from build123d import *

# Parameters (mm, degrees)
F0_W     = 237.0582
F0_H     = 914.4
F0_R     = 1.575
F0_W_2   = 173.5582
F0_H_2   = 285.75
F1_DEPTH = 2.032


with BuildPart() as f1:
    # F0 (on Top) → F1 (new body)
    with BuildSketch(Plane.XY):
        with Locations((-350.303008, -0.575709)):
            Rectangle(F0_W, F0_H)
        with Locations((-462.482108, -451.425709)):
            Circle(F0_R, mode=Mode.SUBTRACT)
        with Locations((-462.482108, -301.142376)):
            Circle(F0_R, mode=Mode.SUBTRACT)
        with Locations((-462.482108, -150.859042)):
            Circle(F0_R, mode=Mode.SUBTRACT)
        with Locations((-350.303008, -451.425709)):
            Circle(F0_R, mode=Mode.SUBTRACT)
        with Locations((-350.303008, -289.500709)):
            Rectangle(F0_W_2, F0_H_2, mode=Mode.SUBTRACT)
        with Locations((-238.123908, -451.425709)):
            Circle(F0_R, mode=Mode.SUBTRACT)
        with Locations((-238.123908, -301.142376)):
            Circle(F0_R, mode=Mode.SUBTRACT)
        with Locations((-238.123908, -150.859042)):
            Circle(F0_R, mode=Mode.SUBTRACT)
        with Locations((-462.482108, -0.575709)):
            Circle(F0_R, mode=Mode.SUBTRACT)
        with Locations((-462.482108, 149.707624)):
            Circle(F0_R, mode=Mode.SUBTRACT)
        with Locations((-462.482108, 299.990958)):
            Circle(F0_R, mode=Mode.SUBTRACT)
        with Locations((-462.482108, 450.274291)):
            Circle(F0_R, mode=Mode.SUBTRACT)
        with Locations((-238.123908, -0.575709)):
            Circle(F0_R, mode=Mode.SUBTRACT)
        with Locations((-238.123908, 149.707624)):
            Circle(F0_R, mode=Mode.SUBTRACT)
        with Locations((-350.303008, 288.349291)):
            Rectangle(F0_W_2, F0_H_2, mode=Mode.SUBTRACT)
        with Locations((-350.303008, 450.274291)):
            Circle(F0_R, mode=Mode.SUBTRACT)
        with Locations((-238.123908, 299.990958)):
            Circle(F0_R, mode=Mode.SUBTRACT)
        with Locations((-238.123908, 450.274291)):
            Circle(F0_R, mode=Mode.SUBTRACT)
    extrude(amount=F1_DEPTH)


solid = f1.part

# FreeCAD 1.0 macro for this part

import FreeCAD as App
import Part
import Sketcher
from FreeCAD import Vector
Q = App.Units.Quantity

doc = App.newDocument("Part")
body = doc.addObject("PartDesign::Body", "Body")

# Sketch on XY plane
sketch1 = doc.addObject("Sketcher::SketchObject", "Sketch")
body.addObject(sketch1)
sketch1.AttachmentSupport = (doc.XY_Plane, [""])
sketch1.MapMode = "FlatFace"
sketch1.addGeometry([
    Part.LineSegment(Vector(-468.8, 456.6, 0), Vector(-468.8, -457.8, 0)),  # 0
    Part.LineSegment(Vector(-468.8, -457.8, 0), Vector(-231.8, -457.8, 0)),  # 1
    Part.LineSegment(Vector(-231.8, -457.8, 0), Vector(-231.8, 456.6, 0)),  # 2
    Part.LineSegment(Vector(-231.8, 456.6, 0), Vector(-468.8, 456.6, 0)),  # 3
    Part.Circle(Vector(-462.5, -451.4, 0), Vector(0, 0, 1), 1.6),  # 4
    Part.Circle(Vector(-462.5, -301.1, 0), Vector(0, 0, 1), 1.6),  # 5
    Part.Circle(Vector(-462.5, -150.9, 0), Vector(0, 0, 1), 1.6),  # 6
    Part.Circle(Vector(-350.3, -451.4, 0), Vector(0, 0, 1), 1.6),  # 7
    Part.LineSegment(Vector(-263.5, -432.4, 0), Vector(-437.1, -432.4, 0)),  # 8
    Part.LineSegment(Vector(-437.1, -432.4, 0), Vector(-437.1, -146.6, 0)),  # 9
    Part.LineSegment(Vector(-437.1, -146.6, 0), Vector(-263.5, -146.6, 0)),  # 10
    Part.LineSegment(Vector(-263.5, -146.6, 0), Vector(-263.5, -432.4, 0)),  # 11
    Part.Circle(Vector(-238.1, -451.4, 0), Vector(0, 0, 1), 1.6),  # 12
    Part.Circle(Vector(-238.1, -301.1, 0), Vector(0, 0, 1), 1.6),  # 13
    Part.Circle(Vector(-238.1, -150.9, 0), Vector(0, 0, 1), 1.6),  # 14
    Part.Circle(Vector(-462.5, -0.6, 0), Vector(0, 0, 1), 1.6),  # 15
    Part.Circle(Vector(-462.5, 149.7, 0), Vector(0, 0, 1), 1.6),  # 16
    Part.Circle(Vector(-462.5, 300, 0), Vector(0, 0, 1), 1.6),  # 17
    Part.Circle(Vector(-462.5, 450.3, 0), Vector(0, 0, 1), 1.6),  # 18
    Part.Circle(Vector(-238.1, -0.6, 0), Vector(0, 0, 1), 1.6),  # 19
    Part.Circle(Vector(-238.1, 149.7, 0), Vector(0, 0, 1), 1.6),  # 20
    Part.LineSegment(Vector(-263.5, 145.5, 0), Vector(-437.1, 145.5, 0)),  # 21
    Part.LineSegment(Vector(-437.1, 145.5, 0), Vector(-437.1, 431.2, 0)),  # 22
    Part.LineSegment(Vector(-437.1, 431.2, 0), Vector(-263.5, 431.2, 0)),  # 23
    Part.LineSegment(Vector(-263.5, 431.2, 0), Vector(-263.5, 145.5, 0)),  # 24
    Part.Circle(Vector(-350.3, 450.3, 0), Vector(0, 0, 1), 1.6),  # 25
    Part.Circle(Vector(-238.1, 300, 0), Vector(0, 0, 1), 1.6),  # 26
    Part.Circle(Vector(-238.1, 450.3, 0), Vector(0, 0, 1), 1.6),  # 27
], False)
sketch1.addConstraint([
    Sketcher.Constraint("Coincident", 0, 2, 1, 1),
    Sketcher.Constraint("Coincident", 1, 2, 2, 1),
    Sketcher.Constraint("Coincident", 2, 2, 3, 1),
    Sketcher.Constraint("Coincident", 3, 2, 0, 1),
    Sketcher.Constraint("Coincident", 8, 2, 9, 1),
    Sketcher.Constraint("Coincident", 9, 2, 10, 1),
    Sketcher.Constraint("Coincident", 10, 2, 11, 1),
    Sketcher.Constraint("Coincident", 11, 2, 8, 1),
    Sketcher.Constraint("Coincident", 21, 2, 22, 1),
    Sketcher.Constraint("Coincident", 22, 2, 23, 1),
    Sketcher.Constraint("Coincident", 23, 2, 24, 1),
    Sketcher.Constraint("Coincident", 24, 2, 21, 1),
    Sketcher.Constraint("Vertical", 0),
    Sketcher.Constraint("Horizontal", 1),
    Sketcher.Constraint("Vertical", 2),
    Sketcher.Constraint("Horizontal", 3),
    Sketcher.Constraint("Horizontal", 8),
    Sketcher.Constraint("Vertical", 9),
    Sketcher.Constraint("Horizontal", 10),
    Sketcher.Constraint("Vertical", 11),
    Sketcher.Constraint("Horizontal", 21),
    Sketcher.Constraint("Vertical", 22),
    Sketcher.Constraint("Horizontal", 23),
    Sketcher.Constraint("Vertical", 24),
    Sketcher.Constraint("Equal", 4, 5),
    Sketcher.Constraint("Equal", 5, 6),
    Sketcher.Constraint("Equal", 6, 7),
    Sketcher.Constraint("Equal", 7, 12),
    Sketcher.Constraint("Equal", 12, 13),
    Sketcher.Constraint("Equal", 13, 14),
    Sketcher.Constraint("Equal", 14, 15),
    Sketcher.Constraint("Equal", 15, 16),
    Sketcher.Constraint("Equal", 16, 17),
    Sketcher.Constraint("Equal", 17, 18),
    Sketcher.Constraint("Equal", 18, 19),
    Sketcher.Constraint("Equal", 19, 20),
    Sketcher.Constraint("Equal", 20, 25),
    Sketcher.Constraint("Equal", 25, 26),
    Sketcher.Constraint("Equal", 26, 27),
    Sketcher.Constraint("Horizontal", 4, 3, 7, 3),
    Sketcher.Constraint("Horizontal", 7, 3, 12, 3),
    Sketcher.Constraint("Horizontal", 5, 3, 13, 3),
    Sketcher.Constraint("Horizontal", 6, 3, 14, 3),
    Sketcher.Constraint("Horizontal", 15, 3, 19, 3),
    Sketcher.Constraint("Horizontal", 16, 3, 20, 3),
    Sketcher.Constraint("Horizontal", 18, 3, 25, 3),
    Sketcher.Constraint("Horizontal", 17, 3, 26, 3),
    Sketcher.Constraint("Horizontal", 25, 3, 27, 3),
    Sketcher.Constraint("Vertical", 4, 3, 5, 3),
    Sketcher.Constraint("Vertical", 5, 3, 6, 3),
    Sketcher.Constraint("Vertical", 12, 3, 13, 3),
    Sketcher.Constraint("Vertical", 13, 3, 14, 3),
    Sketcher.Constraint("Vertical", 6, 3, 15, 3),
    Sketcher.Constraint("Vertical", 15, 3, 16, 3),
    Sketcher.Constraint("Vertical", 16, 3, 17, 3),
    Sketcher.Constraint("Vertical", 17, 3, 18, 3),
    Sketcher.Constraint("Vertical", 14, 3, 19, 3),
    Sketcher.Constraint("Vertical", 19, 3, 20, 3),
    Sketcher.Constraint("Vertical", 7, 3, 25, 3),
    Sketcher.Constraint("Vertical", 20, 3, 26, 3),
    Sketcher.Constraint("Vertical", 26, 3, 27, 3),
    Sketcher.Constraint("Vertical", 9, 2, 21, 2),
    Sketcher.Constraint("Vertical", 11, 2, 23, 2),
    Sketcher.Constraint("Equal", 11, 22),
    Sketcher.Constraint("DistanceY", 0, 2, 0, 1, Q("36 in")),
    Sketcher.Constraint("DistanceX", 4, 3, 8, 2, Q("1 in")),
    Sketcher.Constraint("DistanceY", 0, 2, 8, 2, Q("1 in")),
    Sketcher.Constraint("DistanceX", 10, 2, 14, 3, Q("1 in")),
    Sketcher.Constraint("DistanceY", 22, 2, 3, 2, Q("1 in")),
    Sketcher.Constraint("DistanceY", 9, 1, 9, 2, Q("11.25 in")),
    Sketcher.Constraint("Diameter", 4, Q("3.15 mm")),
    Sketcher.Constraint("DistanceX", 1, 1, 1, 2, Q("9.333 in")),
    Sketcher.Constraint("DistanceX", 8, 2, 8, 1, Q("6.833 in")),
    Sketcher.Constraint("DistanceY", 4, 3, 15, 3, Q("17.75 in")),
    Sketcher.Constraint("DistanceY", 5, 3, 16, 3, Q("17.75 in")),
    Sketcher.Constraint("DistanceY", 6, 3, 17, 3, Q("17.75 in")),
    Sketcher.Constraint("DistanceY", 15, 3, 18, 3, Q("17.75 in")),
    Sketcher.Constraint("DistanceX", 0, 2, 4, 3, Q("0.25 in")),
    Sketcher.Constraint("DistanceY", 0, 2, 4, 3, Q("0.25 in")),
    Sketcher.Constraint("DistanceX", 4, 3, 7, 3, Q("4.4165 in")),
    Sketcher.Constraint("DistanceX", 4, 3, -1, 1, Q("462.482108 mm")),
    Sketcher.Constraint("DistanceY", 4, 3, -1, 1, Q("451.425709 mm")),
    Sketcher.Constraint("DistanceY", 6, 3, -1, 1, Q("150.859042 mm")),
    Sketcher.Constraint("DistanceY", 5, 3, -1, 1, Q("301.142376 mm")),
])
pad1 = doc.addObject("PartDesign::Pad", "Pad")
body.addObject(pad1)
pad1.Profile = sketch1
pad1.Length = Q("0.08 in")

doc.recompute()
